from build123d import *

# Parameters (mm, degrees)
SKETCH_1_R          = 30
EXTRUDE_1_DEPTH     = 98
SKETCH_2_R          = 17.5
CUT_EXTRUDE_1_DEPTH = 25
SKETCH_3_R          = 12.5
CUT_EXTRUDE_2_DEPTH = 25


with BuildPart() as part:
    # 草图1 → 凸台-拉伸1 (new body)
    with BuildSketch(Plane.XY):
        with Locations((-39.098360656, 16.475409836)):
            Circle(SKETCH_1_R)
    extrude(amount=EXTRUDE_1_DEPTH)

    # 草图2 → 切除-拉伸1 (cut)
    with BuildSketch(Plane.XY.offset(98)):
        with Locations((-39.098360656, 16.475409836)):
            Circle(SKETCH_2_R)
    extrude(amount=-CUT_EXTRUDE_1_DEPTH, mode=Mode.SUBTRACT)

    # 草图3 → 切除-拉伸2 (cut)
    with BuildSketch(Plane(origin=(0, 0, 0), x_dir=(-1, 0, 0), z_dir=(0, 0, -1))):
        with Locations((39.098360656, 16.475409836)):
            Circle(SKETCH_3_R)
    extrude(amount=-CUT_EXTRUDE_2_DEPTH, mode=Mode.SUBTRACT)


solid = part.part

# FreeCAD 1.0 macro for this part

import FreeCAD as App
import Part
import Sketcher
from FreeCAD import Vector

doc = App.newDocument("Part")
body = doc.addObject("PartDesign::Body", "Body")

# Sketch on XY plane
sketch1 = body.newObject("Sketcher::SketchObject", "Sketch")
sketch1.AttachmentSupport = (doc.getObject("XY_Plane"), [""])
sketch1.MapMode = "FlatFace"
sketch1.addGeometry(Part.Circle(Vector(-39, 16, 0), Vector(0, 0, 1), 30), False)
sketch1.addConstraint(Sketcher.Constraint("Diameter", 0, 60.0))
sketch1.addConstraint(Sketcher.Constraint("DistanceX", 0, 3, -1, 1, 39.098361))
sketch1.addConstraint(Sketcher.Constraint("DistanceY", -1, 1, 0, 3, 16.47541))
pad1 = body.newObject("PartDesign::Pad", "Pad")
pad1.Profile = sketch1
pad1.Length = 98

# Sketch on XY plane
sketch2 = body.newObject("Sketcher::SketchObject", "Sketch001")
sketch2.AttachmentSupport = (doc.getObject("XY_Plane"), [""])
sketch2.MapMode = "FlatFace"
sketch2.AttachmentOffset = App.Placement(Vector(0, 0, 98), App.Rotation())
sketch2.addGeometry(Part.Circle(Vector(-39, 16, 0), Vector(0, 0, 1), 18), False)
sketch2.addConstraint(Sketcher.Constraint("Diameter", 0, 35.0))
sketch2.addConstraint(Sketcher.Constraint("DistanceX", 0, 3, -1, 1, 39.098361))
sketch2.addConstraint(Sketcher.Constraint("DistanceY", -1, 1, 0, 3, 16.47541))
pocket1 = body.newObject("PartDesign::Pocket", "Pocket")
pocket1.Profile = sketch2
pocket1.Length = 25

# Sketch on XY plane
sketch3 = body.newObject("Sketcher::SketchObject", "Sketch002")
sketch3.AttachmentSupport = (doc.getObject("XY_Plane"), [""])
sketch3.MapMode = "FlatFace"
sketch3.addGeometry(Part.Circle(Vector(-39, 16, 0), Vector(0, 0, 1), 12), False)
sketch3.addConstraint(Sketcher.Constraint("Diameter", 0, 25.0))
sketch3.addConstraint(Sketcher.Constraint("DistanceX", 0, 3, -1, 1, 39.098361))
sketch3.addConstraint(Sketcher.Constraint("DistanceY", -1, 1, 0, 3, 16.47541))
pocket2 = body.newObject("PartDesign::Pocket", "Pocket001")
pocket2.Profile = sketch3
pocket2.Length = 25
pocket2.Reversed = True

doc.recompute()
